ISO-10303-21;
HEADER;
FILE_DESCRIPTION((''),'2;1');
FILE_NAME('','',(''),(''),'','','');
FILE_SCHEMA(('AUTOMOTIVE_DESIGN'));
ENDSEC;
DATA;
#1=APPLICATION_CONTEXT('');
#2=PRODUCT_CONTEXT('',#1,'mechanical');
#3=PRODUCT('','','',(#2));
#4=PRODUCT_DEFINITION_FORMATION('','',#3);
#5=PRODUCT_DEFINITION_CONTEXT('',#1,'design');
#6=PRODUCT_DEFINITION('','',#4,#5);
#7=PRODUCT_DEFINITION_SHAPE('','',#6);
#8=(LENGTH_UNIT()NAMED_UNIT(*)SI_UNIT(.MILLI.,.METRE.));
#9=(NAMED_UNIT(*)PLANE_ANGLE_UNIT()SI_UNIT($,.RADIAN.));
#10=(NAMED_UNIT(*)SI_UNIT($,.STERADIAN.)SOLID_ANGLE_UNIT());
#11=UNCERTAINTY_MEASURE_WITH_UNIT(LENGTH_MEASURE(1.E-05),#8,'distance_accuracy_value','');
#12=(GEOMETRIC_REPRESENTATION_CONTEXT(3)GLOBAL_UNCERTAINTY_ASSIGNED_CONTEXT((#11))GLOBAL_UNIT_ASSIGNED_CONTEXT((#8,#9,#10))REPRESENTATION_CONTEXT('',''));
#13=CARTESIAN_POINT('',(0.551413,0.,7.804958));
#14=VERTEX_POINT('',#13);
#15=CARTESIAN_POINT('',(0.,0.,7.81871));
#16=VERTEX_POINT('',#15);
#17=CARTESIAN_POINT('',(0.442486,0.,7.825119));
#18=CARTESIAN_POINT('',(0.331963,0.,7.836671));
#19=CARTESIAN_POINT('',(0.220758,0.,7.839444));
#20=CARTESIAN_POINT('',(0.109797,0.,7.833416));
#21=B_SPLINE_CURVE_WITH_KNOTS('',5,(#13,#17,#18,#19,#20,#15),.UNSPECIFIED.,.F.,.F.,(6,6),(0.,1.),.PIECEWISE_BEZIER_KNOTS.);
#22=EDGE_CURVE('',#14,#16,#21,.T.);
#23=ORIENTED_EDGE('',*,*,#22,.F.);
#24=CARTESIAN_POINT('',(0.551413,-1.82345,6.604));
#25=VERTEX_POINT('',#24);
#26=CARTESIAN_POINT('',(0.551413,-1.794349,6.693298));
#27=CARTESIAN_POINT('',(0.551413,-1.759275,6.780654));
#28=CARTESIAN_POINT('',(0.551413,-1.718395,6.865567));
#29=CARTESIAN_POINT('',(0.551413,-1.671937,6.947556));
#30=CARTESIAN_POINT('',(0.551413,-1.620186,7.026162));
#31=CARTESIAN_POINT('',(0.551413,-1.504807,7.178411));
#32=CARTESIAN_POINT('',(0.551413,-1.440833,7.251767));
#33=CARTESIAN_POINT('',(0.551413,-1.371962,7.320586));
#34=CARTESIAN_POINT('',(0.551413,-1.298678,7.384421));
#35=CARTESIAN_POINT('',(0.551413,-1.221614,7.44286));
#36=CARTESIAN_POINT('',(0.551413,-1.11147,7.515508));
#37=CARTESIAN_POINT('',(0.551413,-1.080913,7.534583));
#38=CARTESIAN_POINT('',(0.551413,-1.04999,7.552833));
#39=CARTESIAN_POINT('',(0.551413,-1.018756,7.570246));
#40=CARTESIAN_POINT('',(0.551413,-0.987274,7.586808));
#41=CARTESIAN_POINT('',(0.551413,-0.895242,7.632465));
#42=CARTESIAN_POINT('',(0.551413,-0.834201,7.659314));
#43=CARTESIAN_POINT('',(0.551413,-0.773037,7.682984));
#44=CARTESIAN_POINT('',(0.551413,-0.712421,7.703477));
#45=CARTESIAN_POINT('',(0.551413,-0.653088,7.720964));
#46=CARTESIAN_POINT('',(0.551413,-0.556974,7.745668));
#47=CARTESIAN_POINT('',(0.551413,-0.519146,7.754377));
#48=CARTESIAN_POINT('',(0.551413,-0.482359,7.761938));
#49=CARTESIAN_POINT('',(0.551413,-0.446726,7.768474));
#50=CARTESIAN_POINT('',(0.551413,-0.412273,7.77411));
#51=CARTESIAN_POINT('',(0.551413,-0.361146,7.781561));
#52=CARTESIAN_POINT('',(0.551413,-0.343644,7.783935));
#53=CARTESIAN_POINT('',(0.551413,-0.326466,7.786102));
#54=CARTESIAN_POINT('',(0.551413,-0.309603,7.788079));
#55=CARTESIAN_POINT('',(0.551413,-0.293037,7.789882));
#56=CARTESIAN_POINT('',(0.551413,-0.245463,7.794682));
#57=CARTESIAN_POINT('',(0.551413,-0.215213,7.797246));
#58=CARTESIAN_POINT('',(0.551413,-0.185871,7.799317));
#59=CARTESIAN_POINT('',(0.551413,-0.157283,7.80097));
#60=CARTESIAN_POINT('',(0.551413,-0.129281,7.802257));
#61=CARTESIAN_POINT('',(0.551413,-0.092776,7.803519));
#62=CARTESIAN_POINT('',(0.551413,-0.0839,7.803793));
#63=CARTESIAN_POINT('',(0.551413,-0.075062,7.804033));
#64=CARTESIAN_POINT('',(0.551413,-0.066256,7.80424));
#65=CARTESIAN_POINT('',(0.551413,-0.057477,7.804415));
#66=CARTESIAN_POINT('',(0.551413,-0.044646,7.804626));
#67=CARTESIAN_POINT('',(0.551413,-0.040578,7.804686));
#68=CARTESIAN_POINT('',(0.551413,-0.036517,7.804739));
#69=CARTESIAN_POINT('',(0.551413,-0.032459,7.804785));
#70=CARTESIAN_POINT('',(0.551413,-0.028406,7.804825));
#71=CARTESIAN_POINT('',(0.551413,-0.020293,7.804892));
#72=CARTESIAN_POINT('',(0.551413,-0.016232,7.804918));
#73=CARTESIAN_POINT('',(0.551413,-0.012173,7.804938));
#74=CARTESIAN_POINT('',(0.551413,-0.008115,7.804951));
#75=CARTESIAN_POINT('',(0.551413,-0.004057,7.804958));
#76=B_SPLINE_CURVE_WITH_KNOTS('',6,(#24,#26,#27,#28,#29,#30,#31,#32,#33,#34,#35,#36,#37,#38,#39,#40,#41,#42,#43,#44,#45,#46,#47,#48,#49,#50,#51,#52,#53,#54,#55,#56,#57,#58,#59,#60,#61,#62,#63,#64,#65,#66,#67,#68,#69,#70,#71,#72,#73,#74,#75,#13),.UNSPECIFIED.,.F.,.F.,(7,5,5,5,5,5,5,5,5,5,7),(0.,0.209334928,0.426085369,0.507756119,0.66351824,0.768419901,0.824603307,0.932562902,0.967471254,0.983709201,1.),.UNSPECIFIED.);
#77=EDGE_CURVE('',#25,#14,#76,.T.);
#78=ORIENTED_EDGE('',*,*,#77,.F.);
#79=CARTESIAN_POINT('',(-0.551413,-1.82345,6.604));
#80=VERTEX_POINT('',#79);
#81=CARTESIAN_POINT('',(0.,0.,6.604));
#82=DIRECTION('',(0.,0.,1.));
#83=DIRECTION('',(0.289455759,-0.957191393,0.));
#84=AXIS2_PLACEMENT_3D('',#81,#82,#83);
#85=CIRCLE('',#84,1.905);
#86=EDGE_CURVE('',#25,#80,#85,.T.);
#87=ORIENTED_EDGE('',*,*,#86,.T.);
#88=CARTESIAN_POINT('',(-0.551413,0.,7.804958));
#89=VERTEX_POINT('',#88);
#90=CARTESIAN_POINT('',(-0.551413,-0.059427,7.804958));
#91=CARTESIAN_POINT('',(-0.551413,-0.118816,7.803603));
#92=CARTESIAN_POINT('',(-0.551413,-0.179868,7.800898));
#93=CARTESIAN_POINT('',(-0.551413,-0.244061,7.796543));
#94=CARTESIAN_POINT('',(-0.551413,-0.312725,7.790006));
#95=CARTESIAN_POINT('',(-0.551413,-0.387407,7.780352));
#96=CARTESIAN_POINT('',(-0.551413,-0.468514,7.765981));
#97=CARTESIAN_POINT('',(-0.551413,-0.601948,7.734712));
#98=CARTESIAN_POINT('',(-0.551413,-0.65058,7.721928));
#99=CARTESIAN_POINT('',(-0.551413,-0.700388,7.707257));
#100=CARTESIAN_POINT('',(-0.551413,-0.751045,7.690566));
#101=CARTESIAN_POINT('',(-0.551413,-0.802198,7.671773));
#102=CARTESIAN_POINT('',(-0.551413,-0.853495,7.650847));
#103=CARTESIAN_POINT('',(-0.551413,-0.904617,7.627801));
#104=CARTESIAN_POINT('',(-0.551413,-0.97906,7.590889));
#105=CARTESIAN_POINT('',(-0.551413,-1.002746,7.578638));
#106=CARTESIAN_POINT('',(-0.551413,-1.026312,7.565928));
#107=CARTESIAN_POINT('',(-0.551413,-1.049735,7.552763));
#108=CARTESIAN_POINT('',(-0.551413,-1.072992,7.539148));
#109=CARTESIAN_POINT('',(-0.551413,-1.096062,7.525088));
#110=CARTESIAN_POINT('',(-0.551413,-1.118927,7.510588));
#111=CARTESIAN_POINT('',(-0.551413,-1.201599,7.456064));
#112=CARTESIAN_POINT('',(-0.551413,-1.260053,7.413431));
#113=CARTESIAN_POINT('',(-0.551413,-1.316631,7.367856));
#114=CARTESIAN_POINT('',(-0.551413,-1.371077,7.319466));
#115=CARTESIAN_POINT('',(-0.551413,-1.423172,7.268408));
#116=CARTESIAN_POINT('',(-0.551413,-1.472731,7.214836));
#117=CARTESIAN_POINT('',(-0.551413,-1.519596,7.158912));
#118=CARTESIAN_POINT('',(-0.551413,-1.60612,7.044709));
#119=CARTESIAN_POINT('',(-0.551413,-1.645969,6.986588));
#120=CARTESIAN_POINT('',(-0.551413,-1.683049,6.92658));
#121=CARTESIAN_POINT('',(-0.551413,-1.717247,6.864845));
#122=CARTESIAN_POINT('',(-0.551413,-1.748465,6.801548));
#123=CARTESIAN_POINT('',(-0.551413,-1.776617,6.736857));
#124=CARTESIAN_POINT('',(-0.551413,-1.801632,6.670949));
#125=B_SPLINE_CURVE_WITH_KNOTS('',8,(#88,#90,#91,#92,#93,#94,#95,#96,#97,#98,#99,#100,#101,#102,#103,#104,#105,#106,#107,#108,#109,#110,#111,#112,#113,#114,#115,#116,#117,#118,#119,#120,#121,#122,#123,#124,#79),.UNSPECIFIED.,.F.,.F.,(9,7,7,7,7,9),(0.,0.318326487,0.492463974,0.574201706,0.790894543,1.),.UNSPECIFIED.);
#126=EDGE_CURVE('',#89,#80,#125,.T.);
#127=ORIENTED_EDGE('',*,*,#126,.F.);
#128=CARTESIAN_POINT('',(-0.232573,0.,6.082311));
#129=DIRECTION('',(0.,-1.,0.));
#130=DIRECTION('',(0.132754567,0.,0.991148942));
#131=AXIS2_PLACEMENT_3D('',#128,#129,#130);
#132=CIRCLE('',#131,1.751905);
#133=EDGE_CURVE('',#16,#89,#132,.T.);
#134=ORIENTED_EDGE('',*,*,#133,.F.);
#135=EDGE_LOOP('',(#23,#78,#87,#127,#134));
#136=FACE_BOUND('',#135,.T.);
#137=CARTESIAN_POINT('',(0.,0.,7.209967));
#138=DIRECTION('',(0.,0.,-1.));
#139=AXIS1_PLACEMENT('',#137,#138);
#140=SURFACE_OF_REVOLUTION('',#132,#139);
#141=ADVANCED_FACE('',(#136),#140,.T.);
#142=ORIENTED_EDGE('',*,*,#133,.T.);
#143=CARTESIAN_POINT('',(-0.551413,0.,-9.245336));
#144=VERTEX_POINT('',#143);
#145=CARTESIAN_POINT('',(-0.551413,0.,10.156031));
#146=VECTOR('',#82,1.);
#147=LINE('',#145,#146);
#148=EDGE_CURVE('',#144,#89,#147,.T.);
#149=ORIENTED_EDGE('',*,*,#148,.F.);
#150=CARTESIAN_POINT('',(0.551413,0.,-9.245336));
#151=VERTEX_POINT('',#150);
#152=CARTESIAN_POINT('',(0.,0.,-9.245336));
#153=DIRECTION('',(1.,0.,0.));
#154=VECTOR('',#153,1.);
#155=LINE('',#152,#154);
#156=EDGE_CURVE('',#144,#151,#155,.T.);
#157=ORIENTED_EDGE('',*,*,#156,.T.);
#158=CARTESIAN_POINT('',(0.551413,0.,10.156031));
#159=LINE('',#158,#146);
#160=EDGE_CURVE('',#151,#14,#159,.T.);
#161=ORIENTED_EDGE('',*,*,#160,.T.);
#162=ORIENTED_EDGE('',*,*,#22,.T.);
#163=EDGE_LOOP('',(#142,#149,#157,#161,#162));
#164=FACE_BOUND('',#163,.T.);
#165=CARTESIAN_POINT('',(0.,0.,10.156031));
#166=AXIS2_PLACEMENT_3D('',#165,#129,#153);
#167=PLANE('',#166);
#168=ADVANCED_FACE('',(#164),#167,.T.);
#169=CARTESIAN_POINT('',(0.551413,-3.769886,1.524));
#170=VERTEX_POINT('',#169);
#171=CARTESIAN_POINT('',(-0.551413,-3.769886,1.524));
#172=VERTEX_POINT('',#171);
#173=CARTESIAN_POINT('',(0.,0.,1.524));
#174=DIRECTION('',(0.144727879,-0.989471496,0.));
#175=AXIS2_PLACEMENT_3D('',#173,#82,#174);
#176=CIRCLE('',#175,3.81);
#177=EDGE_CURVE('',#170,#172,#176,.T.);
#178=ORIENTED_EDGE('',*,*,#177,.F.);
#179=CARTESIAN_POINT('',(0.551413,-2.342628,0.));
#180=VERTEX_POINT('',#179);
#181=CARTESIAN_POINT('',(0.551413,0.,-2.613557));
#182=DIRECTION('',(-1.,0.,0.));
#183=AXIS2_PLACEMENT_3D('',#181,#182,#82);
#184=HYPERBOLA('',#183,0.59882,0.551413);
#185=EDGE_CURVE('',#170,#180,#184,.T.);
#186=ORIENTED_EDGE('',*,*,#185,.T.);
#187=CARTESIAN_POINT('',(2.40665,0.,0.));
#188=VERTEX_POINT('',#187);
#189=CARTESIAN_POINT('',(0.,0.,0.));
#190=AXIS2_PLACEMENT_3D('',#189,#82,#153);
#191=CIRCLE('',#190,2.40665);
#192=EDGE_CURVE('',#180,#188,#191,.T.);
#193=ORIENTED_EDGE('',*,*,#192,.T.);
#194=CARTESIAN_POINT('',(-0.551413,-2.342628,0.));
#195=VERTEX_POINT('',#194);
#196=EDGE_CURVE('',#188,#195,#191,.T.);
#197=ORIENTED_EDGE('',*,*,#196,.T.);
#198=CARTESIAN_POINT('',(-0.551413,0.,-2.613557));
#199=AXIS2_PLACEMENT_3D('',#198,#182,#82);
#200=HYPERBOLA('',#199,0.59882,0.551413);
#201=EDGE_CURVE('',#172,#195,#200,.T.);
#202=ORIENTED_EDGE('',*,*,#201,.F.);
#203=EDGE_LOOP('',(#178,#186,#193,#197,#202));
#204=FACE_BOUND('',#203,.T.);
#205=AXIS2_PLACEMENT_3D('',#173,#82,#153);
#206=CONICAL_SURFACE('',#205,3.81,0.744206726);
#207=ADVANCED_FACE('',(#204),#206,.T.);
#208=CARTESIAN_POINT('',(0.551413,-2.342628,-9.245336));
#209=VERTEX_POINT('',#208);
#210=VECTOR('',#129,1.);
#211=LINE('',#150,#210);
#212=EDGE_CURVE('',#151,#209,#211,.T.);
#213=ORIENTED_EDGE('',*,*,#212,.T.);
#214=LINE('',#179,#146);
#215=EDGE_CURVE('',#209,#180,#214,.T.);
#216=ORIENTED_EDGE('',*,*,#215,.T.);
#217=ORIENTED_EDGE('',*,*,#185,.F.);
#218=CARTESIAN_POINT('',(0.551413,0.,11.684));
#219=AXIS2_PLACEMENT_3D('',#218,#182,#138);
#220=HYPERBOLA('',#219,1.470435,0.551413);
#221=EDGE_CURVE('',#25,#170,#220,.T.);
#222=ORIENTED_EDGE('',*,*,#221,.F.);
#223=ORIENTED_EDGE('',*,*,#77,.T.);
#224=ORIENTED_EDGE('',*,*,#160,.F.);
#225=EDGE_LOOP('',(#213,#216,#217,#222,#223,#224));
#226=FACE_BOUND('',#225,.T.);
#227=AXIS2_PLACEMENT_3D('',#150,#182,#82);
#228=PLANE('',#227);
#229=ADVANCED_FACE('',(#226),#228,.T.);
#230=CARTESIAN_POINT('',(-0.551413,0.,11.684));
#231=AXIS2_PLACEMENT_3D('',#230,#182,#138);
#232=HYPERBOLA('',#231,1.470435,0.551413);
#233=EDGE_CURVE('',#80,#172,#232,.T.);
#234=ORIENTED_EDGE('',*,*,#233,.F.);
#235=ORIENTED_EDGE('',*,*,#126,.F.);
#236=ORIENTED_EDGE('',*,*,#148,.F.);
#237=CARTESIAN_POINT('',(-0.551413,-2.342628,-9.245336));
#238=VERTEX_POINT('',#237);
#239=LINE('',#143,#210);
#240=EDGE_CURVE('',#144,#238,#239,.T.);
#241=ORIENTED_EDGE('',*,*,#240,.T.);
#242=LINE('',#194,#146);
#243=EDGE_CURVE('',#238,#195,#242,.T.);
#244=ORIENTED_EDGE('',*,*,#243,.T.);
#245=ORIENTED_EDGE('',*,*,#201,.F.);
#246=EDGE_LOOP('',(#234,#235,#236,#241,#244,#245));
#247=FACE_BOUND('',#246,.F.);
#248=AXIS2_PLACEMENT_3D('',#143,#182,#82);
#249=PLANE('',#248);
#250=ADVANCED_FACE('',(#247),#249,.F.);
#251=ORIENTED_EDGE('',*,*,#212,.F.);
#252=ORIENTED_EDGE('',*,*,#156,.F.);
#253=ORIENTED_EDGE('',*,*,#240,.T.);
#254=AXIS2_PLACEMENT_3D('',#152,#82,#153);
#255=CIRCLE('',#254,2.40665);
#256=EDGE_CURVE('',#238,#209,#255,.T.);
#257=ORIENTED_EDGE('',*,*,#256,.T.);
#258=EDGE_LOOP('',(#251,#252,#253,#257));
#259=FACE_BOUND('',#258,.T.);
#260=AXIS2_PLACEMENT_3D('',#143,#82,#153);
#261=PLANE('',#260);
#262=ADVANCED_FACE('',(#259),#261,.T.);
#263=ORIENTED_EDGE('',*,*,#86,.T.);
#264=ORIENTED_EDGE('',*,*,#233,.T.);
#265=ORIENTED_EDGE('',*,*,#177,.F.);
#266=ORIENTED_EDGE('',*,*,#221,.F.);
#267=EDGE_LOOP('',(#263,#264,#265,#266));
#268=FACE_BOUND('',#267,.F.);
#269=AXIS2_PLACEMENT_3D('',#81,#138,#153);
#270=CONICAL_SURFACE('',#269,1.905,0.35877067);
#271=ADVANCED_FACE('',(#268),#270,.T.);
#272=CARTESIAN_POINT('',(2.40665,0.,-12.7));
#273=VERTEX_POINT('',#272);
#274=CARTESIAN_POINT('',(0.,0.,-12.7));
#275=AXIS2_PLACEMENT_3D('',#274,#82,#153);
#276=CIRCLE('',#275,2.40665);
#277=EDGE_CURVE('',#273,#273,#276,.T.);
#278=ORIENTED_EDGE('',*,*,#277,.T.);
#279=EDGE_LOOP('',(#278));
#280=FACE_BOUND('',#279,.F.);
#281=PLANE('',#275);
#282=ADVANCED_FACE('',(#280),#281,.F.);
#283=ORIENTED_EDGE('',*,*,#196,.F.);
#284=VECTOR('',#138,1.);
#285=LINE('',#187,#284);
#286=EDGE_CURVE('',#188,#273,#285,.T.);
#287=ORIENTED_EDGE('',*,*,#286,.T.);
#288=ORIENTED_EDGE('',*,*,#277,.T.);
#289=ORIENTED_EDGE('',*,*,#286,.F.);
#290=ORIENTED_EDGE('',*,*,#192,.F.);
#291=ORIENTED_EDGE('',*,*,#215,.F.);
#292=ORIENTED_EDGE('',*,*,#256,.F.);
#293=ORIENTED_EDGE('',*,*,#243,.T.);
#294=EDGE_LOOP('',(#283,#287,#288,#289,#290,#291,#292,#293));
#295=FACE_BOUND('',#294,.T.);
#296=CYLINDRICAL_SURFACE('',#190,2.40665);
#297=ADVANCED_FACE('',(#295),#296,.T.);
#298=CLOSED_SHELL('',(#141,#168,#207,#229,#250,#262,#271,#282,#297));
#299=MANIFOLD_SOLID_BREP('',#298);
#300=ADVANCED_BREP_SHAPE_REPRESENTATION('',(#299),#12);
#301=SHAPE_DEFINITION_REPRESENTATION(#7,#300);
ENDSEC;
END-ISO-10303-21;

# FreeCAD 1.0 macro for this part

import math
import FreeCAD as App
import Part
import Sketcher
from FreeCAD import Vector
Q = App.Units.Quantity

doc = App.newDocument("Part")
body = doc.addObject("PartDesign::Body", "Body")

sketch1 = body.newObject("Sketcher::SketchObject", "Sketch")
sketch1.AttachmentSupport = (doc.getObject("XY_Plane"), [""])
sketch1.MapMode = "FlatFace"
sketch1.AttachmentOffset = App.Placement(Vector(0, 0, 0.26 * 25.4), App.Rotation())
sketch1.addGeometry(Part.Circle(Vector(0, 0, 0), Vector(0, 0, 1), 1.9), False)
sketch1.addConstraint([
    Sketcher.Constraint("Coincident", 0, 3, -1, 1),
    Sketcher.Constraint("Diameter", 0, Q("0.15 in")),
])

sketch2 = body.newObject("Sketcher::SketchObject", "Sketch001")
sketch2.AttachmentSupport = (doc.getObject("XY_Plane"), [""])
sketch2.MapMode = "FlatFace"
sketch2.AttachmentOffset = App.Placement(Vector(0, 0, 0.06 * 25.4), App.Rotation())
sketch2.addGeometry(Part.Circle(Vector(0, 0, 0), Vector(0, 0, 1), 3.8), False)
sketch2.addConstraint([
    Sketcher.Constraint("Coincident", 0, 3, -1, 1),
    Sketcher.Constraint("Diameter", 0, Q("0.3 in")),
])

additiveloft = body.newObject("PartDesign::AdditiveLoft", "AdditiveLoft")
additiveloft.Profile = sketch1
additiveloft.Sections = [sketch2]

sketch3 = body.newObject("Sketcher::SketchObject", "Sketch002")
sketch3.AttachmentSupport = (doc.getObject("XY_Plane"), [""])
sketch3.MapMode = "FlatFace"
sketch3.AttachmentOffset = App.Placement(Vector(0, 0, 0.06 * 25.4), App.Rotation())
sketch3.addGeometry(Part.Circle(Vector(0, 0, 0), Vector(0, 0, 1), 3.8), False)
sketch3.addConstraint([
    Sketcher.Constraint("Coincident", 0, 3, -1, 1),
    Sketcher.Constraint("Diameter", 0, Q("0.3 in")),
])

sketch4 = body.newObject("Sketcher::SketchObject", "Sketch003")
sketch4.AttachmentSupport = (doc.getObject("XY_Plane"), [""])
sketch4.MapMode = "FlatFace"
sketch4.addGeometry(Part.Circle(Vector(0, 0, 0), Vector(0, 0, 1), 2.4), False)
sketch4.addConstraint([
    Sketcher.Constraint("Coincident", 0, 3, -1, 1),
    Sketcher.Constraint("Diameter", 0, Q("0.1895 in")),
])

additiveloft2 = body.newObject("PartDesign::AdditiveLoft", "AdditiveLoft001")
additiveloft2.Profile = sketch3
additiveloft2.Sections = [sketch4]

sketch5 = body.newObject("Sketcher::SketchObject", "Sketch004")
sketch5.AttachmentSupport = (doc.getObject("XY_Plane"), [""])
sketch5.MapMode = "FlatFace"
sketch5.addGeometry(Part.Circle(Vector(0, 0, 0), Vector(0, 0, 1), 2.4), False)
sketch5.addConstraint([
    Sketcher.Constraint("Coincident", 0, 3, -1, 1),
    Sketcher.Constraint("Diameter", 0, Q("0.1895 in")),
])
pad1 = body.newObject("PartDesign::Pad", "Pad")
pad1.Profile = sketch5
pad1.Length = Q("0.5 in")
pad1.Reversed = True

sketch6 = body.newObject("Sketcher::SketchObject", "Sketch005")
sketch6.AttachmentSupport = (doc.getObject("XZ_Plane"), [""])
sketch6.MapMode = "FlatFace"
sketch6.addGeometry([
    Part.LineSegment(Vector(0, 6.6, 0), Vector(0, 7.8, 0)),
    Part.ArcOfCircle(Part.Circle(Vector(-0.2, 6.1, 0), Vector(0, 0, 1), 1.8), math.radians(82), math.radians(163)),
    Part.LineSegment(Vector(-1.9, 6.6, 0), Vector(0, 6.6, 0)),
], False)
sketch6.addConstraint([
    Sketcher.Constraint("Coincident", 0, 2, 1, 1),
    Sketcher.Constraint("Coincident", 1, 2, 2, 1),
    Sketcher.Constraint("Coincident", 2, 2, 0, 1),
    Sketcher.Constraint("Vertical", 0),
    Sketcher.Constraint("Horizontal", 2),
    Sketcher.Constraint("PointOnObject", 0, 2, -2),
    Sketcher.Constraint("DistanceX", 2, 1, 2, 2, Q("0.075 in")),
    Sketcher.Constraint("DistanceY", -1, 1, 1, 2, Q("0.26 in")),
    Sketcher.Constraint("Radius", 1, Q("1.751905 mm")),
    Sketcher.Constraint("DistanceY", 0, 1, 0, 2, Q("1.21471 mm")),
])
revolution = body.newObject("PartDesign::Revolution", "Revolution")
revolution.Profile = sketch6
revolution.ReferenceAxis = (sketch6, ["V_Axis"])
revolution.Angle = 360

sketch7 = body.newObject("Sketcher::SketchObject", "Sketch006")
sketch7.AttachmentSupport = (doc.getObject("XZ_Plane"), [""])
sketch7.MapMode = "FlatFace"
sketch7.addGeometry([
    Part.LineSegment(Vector(-0.6, 29.6, 0), Vector(-0.6, -9.2, 0)),
    Part.LineSegment(Vector(-0.6, -9.2, 0), Vector(0.6, -9.2, 0)),
    Part.LineSegment(Vector(0.6, -9.2, 0), Vector(0.6, 29.6, 0)),
    Part.LineSegment(Vector(0.6, 29.6, 0), Vector(-0.6, 29.6, 0)),
], False)
sketch7.addConstraint([
    Sketcher.Constraint("Coincident", 0, 2, 1, 1),
    Sketcher.Constraint("Coincident", 1, 2, 2, 1),
    Sketcher.Constraint("Coincident", 2, 2, 3, 1),
    Sketcher.Constraint("Coincident", 3, 2, 0, 1),
    Sketcher.Constraint("Vertical", 0),
    Sketcher.Constraint("Horizontal", 1),
    Sketcher.Constraint("Vertical", 2),
    Sketcher.Constraint("Horizontal", 3),
    Sketcher.Constraint("DistanceX", 1, 1, 1, 2, Q("1.102826 mm")),
    Sketcher.Constraint("DistanceY", 0, 2, 0, 1, Q("38.802734 mm")),
    Sketcher.Constraint("DistanceX", 0, 2, -1, 1, Q("0.551413 mm")),
    Sketcher.Constraint("DistanceY", 0, 2, -1, 1, Q("9.245336 mm")),
])
pocket1 = body.newObject("PartDesign::Pocket", "Pocket")
pocket1.Profile = sketch7
pocket1.Length = Q("1 in")
pocket1.Reversed = True

doc.recompute()
